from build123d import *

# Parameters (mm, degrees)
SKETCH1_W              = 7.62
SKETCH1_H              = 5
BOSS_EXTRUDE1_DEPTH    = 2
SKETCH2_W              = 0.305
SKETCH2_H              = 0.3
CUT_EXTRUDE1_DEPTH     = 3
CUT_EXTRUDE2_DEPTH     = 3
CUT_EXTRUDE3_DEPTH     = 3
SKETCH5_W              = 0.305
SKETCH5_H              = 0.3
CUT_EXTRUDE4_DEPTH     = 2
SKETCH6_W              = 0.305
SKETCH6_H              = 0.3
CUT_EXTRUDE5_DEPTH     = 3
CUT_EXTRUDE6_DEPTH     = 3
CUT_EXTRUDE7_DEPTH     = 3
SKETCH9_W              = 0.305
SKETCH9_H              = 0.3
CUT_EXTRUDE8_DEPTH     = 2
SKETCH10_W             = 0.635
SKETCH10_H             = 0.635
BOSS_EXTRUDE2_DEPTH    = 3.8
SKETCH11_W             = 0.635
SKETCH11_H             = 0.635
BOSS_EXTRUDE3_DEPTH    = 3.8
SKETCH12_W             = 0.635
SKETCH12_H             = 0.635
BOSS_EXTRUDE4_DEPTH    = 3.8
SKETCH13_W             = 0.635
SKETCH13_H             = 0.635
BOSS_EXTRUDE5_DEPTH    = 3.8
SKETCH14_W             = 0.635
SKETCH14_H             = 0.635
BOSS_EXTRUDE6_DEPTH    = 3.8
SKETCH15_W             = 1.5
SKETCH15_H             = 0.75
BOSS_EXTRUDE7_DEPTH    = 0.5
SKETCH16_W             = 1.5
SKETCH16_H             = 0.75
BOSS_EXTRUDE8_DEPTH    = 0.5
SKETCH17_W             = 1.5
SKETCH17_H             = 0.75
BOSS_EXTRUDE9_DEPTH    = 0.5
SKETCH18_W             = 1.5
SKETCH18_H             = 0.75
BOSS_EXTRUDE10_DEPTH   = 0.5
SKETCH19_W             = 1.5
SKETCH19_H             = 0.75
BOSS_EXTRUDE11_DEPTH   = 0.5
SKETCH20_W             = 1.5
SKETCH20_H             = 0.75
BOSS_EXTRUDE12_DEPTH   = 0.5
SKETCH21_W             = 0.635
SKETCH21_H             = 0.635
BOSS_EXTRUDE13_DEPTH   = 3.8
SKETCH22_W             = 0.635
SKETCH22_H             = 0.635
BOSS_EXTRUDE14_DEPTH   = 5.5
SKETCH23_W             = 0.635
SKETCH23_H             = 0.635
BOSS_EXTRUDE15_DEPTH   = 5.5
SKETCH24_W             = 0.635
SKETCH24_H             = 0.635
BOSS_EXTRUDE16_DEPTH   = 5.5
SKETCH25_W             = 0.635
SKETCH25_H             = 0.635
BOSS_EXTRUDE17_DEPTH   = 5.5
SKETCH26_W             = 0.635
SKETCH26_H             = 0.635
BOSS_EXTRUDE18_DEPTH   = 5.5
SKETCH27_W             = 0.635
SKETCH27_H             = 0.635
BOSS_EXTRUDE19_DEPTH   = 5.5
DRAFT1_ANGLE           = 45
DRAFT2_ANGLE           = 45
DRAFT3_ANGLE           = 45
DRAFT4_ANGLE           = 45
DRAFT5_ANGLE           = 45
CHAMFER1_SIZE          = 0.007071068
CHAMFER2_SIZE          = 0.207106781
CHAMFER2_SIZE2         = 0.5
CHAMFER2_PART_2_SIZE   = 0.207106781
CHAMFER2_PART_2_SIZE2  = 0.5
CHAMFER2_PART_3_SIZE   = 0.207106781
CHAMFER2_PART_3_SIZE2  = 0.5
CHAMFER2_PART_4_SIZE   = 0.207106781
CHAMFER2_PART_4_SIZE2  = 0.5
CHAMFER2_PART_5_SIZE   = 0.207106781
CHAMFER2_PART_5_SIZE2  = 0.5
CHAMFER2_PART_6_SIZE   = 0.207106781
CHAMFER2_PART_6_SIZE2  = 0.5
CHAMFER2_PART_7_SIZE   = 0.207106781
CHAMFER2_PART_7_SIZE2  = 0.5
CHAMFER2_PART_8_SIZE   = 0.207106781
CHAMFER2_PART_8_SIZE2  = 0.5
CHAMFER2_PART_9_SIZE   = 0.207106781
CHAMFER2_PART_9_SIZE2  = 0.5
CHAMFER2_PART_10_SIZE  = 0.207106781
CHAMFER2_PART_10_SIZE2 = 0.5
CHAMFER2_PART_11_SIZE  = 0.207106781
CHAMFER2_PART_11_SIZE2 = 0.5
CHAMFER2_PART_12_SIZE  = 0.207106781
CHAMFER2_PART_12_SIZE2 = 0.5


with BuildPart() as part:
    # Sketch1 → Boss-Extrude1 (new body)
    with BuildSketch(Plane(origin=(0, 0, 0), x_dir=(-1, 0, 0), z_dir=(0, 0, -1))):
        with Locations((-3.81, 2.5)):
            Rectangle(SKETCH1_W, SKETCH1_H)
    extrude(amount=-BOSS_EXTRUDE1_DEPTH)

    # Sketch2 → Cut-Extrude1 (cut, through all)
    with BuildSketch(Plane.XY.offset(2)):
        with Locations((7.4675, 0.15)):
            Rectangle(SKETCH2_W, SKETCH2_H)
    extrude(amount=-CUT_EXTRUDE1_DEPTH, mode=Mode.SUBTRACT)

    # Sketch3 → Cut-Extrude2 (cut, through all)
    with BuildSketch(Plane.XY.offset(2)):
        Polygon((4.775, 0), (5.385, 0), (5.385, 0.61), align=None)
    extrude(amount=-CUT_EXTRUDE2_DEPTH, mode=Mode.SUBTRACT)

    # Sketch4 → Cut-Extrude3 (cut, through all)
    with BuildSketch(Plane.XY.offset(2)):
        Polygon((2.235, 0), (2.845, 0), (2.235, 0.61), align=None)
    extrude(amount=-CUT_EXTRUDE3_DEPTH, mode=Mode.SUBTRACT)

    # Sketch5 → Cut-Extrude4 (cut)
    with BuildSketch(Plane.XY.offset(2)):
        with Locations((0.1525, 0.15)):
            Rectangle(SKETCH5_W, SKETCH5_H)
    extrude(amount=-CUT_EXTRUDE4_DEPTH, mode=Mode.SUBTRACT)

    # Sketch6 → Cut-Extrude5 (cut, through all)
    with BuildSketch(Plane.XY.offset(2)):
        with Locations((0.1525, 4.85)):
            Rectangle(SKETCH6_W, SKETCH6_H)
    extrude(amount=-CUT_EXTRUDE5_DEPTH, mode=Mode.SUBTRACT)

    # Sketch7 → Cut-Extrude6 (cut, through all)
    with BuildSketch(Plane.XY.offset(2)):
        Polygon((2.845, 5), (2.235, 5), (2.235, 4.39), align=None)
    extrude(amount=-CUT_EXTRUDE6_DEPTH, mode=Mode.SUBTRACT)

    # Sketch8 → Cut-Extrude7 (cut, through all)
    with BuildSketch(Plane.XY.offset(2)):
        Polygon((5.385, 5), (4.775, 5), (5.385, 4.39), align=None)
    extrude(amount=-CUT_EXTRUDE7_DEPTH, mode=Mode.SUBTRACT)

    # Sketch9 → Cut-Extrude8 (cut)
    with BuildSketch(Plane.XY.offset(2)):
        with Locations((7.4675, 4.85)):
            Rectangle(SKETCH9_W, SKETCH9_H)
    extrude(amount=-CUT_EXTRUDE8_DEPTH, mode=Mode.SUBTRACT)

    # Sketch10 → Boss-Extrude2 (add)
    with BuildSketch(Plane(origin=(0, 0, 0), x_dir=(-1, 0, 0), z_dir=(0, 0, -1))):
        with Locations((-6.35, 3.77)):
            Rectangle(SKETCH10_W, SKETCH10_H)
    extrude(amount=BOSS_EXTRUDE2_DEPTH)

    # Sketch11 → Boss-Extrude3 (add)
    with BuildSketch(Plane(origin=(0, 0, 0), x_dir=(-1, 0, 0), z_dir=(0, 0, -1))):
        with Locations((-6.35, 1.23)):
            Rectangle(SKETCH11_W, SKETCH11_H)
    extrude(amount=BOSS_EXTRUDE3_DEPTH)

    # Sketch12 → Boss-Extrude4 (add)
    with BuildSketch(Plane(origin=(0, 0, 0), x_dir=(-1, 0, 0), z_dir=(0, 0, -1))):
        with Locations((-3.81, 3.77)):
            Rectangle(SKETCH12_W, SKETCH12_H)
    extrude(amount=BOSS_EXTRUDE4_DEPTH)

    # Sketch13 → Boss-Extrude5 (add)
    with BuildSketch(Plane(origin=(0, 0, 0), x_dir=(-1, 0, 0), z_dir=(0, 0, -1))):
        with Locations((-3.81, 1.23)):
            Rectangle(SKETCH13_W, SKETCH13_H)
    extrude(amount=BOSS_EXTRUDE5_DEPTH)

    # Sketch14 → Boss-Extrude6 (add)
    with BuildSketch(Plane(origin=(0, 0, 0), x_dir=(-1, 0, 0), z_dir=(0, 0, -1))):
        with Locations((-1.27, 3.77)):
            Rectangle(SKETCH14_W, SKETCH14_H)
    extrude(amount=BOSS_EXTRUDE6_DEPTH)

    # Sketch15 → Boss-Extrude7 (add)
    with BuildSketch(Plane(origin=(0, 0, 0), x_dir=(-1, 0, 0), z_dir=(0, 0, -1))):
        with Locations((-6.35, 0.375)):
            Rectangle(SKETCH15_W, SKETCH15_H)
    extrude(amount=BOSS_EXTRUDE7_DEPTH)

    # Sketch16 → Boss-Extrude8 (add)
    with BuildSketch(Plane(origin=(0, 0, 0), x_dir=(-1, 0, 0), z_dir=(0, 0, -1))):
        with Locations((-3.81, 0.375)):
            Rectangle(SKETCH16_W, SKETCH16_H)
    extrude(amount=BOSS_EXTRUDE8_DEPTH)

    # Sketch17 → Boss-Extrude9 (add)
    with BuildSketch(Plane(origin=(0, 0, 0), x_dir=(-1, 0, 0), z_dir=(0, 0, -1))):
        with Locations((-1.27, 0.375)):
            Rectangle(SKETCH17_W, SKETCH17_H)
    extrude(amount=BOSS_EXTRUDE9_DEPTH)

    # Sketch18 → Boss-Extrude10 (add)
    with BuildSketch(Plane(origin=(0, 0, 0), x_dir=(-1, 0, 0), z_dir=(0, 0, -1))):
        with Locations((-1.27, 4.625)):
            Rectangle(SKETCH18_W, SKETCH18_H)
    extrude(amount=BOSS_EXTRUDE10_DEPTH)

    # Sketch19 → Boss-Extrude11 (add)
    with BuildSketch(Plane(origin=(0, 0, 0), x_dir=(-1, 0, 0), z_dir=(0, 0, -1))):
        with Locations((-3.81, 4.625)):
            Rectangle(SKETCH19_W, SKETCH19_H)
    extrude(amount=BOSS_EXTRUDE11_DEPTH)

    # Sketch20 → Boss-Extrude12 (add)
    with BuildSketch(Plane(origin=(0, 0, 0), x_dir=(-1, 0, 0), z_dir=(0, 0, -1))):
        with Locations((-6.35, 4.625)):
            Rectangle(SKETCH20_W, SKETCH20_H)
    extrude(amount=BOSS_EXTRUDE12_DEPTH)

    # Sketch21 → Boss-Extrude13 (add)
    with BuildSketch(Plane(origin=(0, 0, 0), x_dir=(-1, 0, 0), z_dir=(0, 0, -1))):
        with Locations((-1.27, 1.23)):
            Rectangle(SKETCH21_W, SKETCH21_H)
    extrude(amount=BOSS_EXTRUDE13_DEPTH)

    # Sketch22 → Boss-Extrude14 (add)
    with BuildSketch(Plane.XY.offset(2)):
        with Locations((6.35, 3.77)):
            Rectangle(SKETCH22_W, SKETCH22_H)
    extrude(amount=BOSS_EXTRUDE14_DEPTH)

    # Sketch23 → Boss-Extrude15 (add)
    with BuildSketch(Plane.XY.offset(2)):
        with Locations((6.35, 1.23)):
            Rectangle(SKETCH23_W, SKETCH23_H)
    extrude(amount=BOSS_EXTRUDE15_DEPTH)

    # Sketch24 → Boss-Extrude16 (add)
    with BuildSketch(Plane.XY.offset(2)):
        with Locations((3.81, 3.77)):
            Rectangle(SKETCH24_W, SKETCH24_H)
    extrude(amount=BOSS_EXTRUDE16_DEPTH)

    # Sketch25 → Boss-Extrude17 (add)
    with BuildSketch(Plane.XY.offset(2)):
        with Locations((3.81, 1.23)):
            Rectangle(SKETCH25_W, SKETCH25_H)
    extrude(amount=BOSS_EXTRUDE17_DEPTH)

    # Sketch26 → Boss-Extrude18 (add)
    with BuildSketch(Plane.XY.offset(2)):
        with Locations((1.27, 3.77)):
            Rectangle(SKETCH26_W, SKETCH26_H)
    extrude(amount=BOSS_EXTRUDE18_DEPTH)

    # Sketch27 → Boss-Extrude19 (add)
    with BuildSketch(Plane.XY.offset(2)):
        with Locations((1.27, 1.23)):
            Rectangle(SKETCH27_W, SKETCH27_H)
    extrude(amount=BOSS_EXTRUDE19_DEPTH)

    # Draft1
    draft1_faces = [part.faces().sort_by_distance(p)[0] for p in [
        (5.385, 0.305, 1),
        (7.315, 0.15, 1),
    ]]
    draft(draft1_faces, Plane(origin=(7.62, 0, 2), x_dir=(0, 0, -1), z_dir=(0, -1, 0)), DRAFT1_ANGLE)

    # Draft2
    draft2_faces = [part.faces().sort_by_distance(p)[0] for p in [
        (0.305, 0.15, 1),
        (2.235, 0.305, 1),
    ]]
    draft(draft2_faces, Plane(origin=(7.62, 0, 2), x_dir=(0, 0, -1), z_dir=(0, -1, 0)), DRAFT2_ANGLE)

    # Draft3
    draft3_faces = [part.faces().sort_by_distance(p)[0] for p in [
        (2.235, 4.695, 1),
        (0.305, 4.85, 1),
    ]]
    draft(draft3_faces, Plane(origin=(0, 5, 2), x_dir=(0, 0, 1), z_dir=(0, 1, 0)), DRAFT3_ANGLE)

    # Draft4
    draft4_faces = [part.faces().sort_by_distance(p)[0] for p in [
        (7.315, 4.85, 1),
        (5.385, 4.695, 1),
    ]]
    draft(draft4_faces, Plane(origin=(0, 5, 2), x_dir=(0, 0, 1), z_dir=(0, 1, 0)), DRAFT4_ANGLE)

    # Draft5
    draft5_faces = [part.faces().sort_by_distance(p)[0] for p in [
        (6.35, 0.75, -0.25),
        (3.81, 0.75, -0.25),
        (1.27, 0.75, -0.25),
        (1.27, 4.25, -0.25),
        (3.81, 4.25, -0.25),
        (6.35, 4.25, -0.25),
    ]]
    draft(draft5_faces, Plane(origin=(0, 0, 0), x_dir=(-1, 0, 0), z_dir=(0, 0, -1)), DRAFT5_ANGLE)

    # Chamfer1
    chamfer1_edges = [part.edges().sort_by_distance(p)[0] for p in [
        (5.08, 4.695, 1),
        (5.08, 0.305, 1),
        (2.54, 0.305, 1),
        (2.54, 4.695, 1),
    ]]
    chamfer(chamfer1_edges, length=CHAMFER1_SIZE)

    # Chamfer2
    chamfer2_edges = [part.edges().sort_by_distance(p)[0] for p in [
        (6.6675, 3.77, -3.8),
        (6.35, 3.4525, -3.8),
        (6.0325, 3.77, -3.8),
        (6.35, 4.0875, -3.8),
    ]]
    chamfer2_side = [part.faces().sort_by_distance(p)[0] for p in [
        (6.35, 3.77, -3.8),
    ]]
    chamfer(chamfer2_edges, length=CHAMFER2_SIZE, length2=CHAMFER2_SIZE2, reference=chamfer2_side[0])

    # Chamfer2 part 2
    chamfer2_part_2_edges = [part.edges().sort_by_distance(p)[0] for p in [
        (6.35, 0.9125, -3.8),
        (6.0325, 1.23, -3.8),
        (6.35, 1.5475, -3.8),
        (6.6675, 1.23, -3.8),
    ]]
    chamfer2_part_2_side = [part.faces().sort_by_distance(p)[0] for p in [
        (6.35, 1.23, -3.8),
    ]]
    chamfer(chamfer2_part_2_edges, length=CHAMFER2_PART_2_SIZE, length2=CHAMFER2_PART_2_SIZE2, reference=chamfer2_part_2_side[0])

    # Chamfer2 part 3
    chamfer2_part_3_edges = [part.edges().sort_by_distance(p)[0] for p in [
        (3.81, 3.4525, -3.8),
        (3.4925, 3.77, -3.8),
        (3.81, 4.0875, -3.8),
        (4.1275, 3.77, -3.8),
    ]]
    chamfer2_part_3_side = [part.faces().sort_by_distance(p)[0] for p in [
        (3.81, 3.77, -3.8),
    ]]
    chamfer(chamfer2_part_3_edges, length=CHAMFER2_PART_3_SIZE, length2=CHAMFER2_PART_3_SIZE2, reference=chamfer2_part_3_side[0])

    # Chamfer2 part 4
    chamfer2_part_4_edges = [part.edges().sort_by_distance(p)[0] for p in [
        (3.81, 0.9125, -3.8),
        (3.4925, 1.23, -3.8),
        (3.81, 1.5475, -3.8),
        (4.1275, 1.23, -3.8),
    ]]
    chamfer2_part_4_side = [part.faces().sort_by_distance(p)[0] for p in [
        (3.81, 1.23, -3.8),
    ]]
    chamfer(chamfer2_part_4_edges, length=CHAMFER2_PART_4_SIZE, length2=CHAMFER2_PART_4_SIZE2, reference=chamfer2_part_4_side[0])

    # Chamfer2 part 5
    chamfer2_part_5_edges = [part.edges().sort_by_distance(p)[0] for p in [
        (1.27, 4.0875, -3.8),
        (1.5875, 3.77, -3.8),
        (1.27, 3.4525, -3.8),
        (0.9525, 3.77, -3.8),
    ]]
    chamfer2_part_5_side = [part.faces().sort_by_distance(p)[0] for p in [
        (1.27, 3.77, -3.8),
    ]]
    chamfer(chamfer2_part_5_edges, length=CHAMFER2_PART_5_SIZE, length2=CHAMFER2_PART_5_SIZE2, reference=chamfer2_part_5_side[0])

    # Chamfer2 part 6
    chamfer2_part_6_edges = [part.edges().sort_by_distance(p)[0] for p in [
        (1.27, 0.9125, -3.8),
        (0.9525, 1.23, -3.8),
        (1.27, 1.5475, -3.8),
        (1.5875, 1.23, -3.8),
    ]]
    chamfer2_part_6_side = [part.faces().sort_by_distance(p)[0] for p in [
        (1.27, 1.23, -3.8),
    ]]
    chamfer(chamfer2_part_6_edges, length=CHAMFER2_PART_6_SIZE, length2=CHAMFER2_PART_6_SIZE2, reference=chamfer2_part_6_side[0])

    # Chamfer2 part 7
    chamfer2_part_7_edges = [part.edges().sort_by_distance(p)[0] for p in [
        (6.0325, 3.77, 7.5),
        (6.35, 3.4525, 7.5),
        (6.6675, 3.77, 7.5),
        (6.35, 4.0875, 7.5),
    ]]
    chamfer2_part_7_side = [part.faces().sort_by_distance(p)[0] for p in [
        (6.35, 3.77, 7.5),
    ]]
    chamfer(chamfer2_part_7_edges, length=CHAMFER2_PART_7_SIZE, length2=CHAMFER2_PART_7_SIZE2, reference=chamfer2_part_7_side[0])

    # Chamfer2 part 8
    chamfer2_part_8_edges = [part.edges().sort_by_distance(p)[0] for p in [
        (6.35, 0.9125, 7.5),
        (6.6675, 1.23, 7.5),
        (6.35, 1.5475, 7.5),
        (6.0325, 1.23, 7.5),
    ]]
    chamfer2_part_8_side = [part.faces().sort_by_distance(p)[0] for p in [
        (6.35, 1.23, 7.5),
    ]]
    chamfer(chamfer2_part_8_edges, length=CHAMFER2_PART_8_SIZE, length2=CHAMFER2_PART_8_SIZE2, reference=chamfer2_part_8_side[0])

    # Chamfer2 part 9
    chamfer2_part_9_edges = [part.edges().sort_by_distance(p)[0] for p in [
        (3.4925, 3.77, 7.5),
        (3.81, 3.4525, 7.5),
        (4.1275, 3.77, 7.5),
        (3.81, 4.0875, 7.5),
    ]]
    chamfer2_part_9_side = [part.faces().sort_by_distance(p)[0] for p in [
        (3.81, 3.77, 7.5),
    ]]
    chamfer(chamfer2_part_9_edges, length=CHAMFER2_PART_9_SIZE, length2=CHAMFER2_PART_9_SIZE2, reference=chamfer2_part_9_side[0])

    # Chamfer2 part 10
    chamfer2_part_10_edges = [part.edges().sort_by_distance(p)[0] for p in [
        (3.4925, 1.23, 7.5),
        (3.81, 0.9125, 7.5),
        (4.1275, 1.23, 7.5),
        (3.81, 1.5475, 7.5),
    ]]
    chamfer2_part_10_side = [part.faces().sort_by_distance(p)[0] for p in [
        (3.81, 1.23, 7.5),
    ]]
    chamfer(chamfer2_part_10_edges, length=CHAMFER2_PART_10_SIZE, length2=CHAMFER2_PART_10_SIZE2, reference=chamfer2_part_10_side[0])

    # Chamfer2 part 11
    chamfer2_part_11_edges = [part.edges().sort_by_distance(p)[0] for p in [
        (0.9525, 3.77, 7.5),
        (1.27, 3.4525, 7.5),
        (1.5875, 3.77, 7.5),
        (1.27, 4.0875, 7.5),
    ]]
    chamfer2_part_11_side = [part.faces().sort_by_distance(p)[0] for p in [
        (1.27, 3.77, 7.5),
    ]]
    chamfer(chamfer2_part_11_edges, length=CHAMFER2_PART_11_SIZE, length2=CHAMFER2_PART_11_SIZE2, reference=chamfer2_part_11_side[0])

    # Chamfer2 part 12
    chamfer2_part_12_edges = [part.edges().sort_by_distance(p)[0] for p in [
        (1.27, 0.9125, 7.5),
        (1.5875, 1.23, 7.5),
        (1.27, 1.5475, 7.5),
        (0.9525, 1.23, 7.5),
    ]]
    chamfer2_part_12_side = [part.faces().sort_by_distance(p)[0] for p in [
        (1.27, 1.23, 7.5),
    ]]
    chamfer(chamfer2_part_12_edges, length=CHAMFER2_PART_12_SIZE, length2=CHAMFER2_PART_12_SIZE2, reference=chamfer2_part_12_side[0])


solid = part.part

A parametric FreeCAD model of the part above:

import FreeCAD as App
import Part
import Sketcher
from FreeCAD import Vector


def edges_at(feature, points):
    """Names of the edges that pass closest to the given points."""
    edges = feature.Shape.Edges
    near = lambda p: min(range(len(edges)), key=lambda i: edges[i].distToShape(Part.Vertex(*p))[0])
    return sorted({f"Edge{near(p) + 1}" for p in points})


def faces_at(feature, points):
    """Names of the faces that lie closest to the given points."""
    faces = feature.Shape.Faces
    near = lambda p: min(range(len(faces)), key=lambda i: faces[i].distToShape(Part.Vertex(*p))[0])
    return sorted({f"Face{near(p) + 1}" for p in points})


def add_polygon(sketch, points):
    """Adds a closed chain of lines whose ends are joined by coincident constraints."""
    first, n = sketch.GeometryCount, len(points)
    for a, b in zip(points, points[1:] + points[:1]):
        sketch.addGeometry(Part.LineSegment(App.Vector(*a, 0), App.Vector(*b, 0)), False)
    for i in range(n):
        sketch.addConstraint(Sketcher.Constraint("Coincident", first + i, 2, first + (i + 1) % n, 1))

doc = App.newDocument("Part")
body = doc.addObject("PartDesign::Body", "Body")

sketch1 = doc.addObject("Sketcher::SketchObject", "Sketch")
body.addObject(sketch1)
sketch1.AttachmentSupport = (doc.XY_Plane, [""])
sketch1.MapMode = "FlatFace"
add_polygon(sketch1, [(7.62, 5), (7.62, 0), (0, 0), (0, 5)])
sketch1.addConstraint(Sketcher.Constraint("Vertical", 0))
sketch1.addConstraint(Sketcher.Constraint("Horizontal", 1))
sketch1.addConstraint(Sketcher.Constraint("Vertical", 2))
sketch1.addConstraint(Sketcher.Constraint("Horizontal", 3))
sketch1.addConstraint(Sketcher.Constraint("Coincident", 1, 2, -1, 1))
sketch1.addConstraint(Sketcher.Constraint("DistanceY", 0, 2, 0, 1, 5.0))
sketch1.addConstraint(Sketcher.Constraint("DistanceX", 1, 2, 1, 1, 7.62))
pad1 = doc.addObject("PartDesign::Pad", "Pad")
body.addObject(pad1)
pad1.Profile = sketch1
pad1.Length = 2

sketch2 = doc.addObject("Sketcher::SketchObject", "Sketch001")
body.addObject(sketch2)
sketch2.AttachmentSupport = (doc.XY_Plane, [""])
sketch2.MapMode = "FlatFace"
sketch2.AttachmentOffset = App.Placement(Vector(0, 0, 2), App.Rotation())
add_polygon(sketch2, [(7.315, 0.3), (7.315, 0), (7.62, 0), (7.62, 0.3)])
sketch2.addConstraint(Sketcher.Constraint("Vertical", 0))
sketch2.addConstraint(Sketcher.Constraint("Horizontal", 1))
sketch2.addConstraint(Sketcher.Constraint("Vertical", 2))
sketch2.addConstraint(Sketcher.Constraint("Horizontal", 3))
sketch2.addConstraint(Sketcher.Constraint("PointOnObject", 0, 2, -1))
sketch2.addConstraint(Sketcher.Constraint("DistanceY", 0, 2, 0, 1, 0.3))
sketch2.addConstraint(Sketcher.Constraint("DistanceX", 1, 1, 1, 2, 0.305))
sketch2.addConstraint(Sketcher.Constraint("DistanceX", -1, 1, 1, 2, 7.62))
pocket1 = doc.addObject("PartDesign::Pocket", "Pocket")
body.addObject(pocket1)
pocket1.Profile = sketch2
pocket1.Type = "ThroughAll"

sketch3 = doc.addObject("Sketcher::SketchObject", "Sketch002")
body.addObject(sketch3)
sketch3.AttachmentSupport = (doc.XY_Plane, [""])
sketch3.MapMode = "FlatFace"
sketch3.AttachmentOffset = App.Placement(Vector(0, 0, 2), App.Rotation())
add_polygon(sketch3, [(4.775, 0), (5.385, 0), (5.385, 0.61)])
sketch3.addConstraint(Sketcher.Constraint("Horizontal", 0))
sketch3.addConstraint(Sketcher.Constraint("Vertical", 1))
sketch3.addConstraint(Sketcher.Constraint("PointOnObject", 0, 2, -1))
sketch3.addConstraint(Sketcher.Constraint("Equal", 0, 1))
sketch3.addConstraint(Sketcher.Constraint("DistanceX", 0, 1, 0, 2, 0.61))
sketch3.addConstraint(Sketcher.Constraint("DistanceX", -1, 1, 0, 2, 5.385))
pocket2 = doc.addObject("PartDesign::Pocket", "Pocket001")
body.addObject(pocket2)
pocket2.Profile = sketch3
pocket2.Type = "ThroughAll"

sketch4 = doc.addObject("Sketcher::SketchObject", "Sketch003")
body.addObject(sketch4)
sketch4.AttachmentSupport = (doc.XY_Plane, [""])
sketch4.MapMode = "FlatFace"
sketch4.AttachmentOffset = App.Placement(Vector(0, 0, 2), App.Rotation())
add_polygon(sketch4, [(2.235, 0), (2.845, 0), (2.235, 0.61)])
sketch4.addConstraint(Sketcher.Constraint("Horizontal", 0))
sketch4.addConstraint(Sketcher.Constraint("Vertical", 2))
sketch4.addConstraint(Sketcher.Constraint("PointOnObject", 0, 2, -1))
sketch4.addConstraint(Sketcher.Constraint("Equal", 0, 2))
sketch4.addConstraint(Sketcher.Constraint("DistanceX", 0, 1, 0, 2, 0.61))
sketch4.addConstraint(Sketcher.Constraint("DistanceX", -1, 1, 0, 2, 2.845))
pocket3 = doc.addObject("PartDesign::Pocket", "Pocket002")
body.addObject(pocket3)
pocket3.Profile = sketch4
pocket3.Type = "ThroughAll"

sketch5 = doc.addObject("Sketcher::SketchObject", "Sketch004")
body.addObject(sketch5)
sketch5.AttachmentSupport = (doc.XY_Plane, [""])
sketch5.MapMode = "FlatFace"
sketch5.AttachmentOffset = App.Placement(Vector(0, 0, 2), App.Rotation())
add_polygon(sketch5, [(0, 0.3), (0, 0), (0.305, 0), (0.305, 0.3)])
sketch5.addConstraint(Sketcher.Constraint("Vertical", 0))
sketch5.addConstraint(Sketcher.Constraint("Horizontal", 1))
sketch5.addConstraint(Sketcher.Constraint("Vertical", 2))
sketch5.addConstraint(Sketcher.Constraint("Horizontal", 3))
sketch5.addConstraint(Sketcher.Constraint("Coincident", 0, 2, -1, 1))
sketch5.addConstraint(Sketcher.Constraint("DistanceY", 0, 2, 0, 1, 0.3))
sketch5.addConstraint(Sketcher.Constraint("DistanceX", 1, 1, 1, 2, 0.305))
pocket4 = doc.addObject("PartDesign::Pocket", "Pocket003")
body.addObject(pocket4)
pocket4.Profile = sketch5
pocket4.Length = 2

sketch6 = doc.addObject("Sketcher::SketchObject", "Sketch005")
body.addObject(sketch6)
sketch6.AttachmentSupport = (doc.XY_Plane, [""])
sketch6.MapMode = "FlatFace"
sketch6.AttachmentOffset = App.Placement(Vector(0, 0, 2), App.Rotation())
add_polygon(sketch6, [(0, 5), (0, 4.7), (0.305, 4.7), (0.305, 5)])
sketch6.addConstraint(Sketcher.Constraint("Vertical", 0))
sketch6.addConstraint(Sketcher.Constraint("Horizontal", 1))
sketch6.addConstraint(Sketcher.Constraint("Vertical", 2))
sketch6.addConstraint(Sketcher.Constraint("Horizontal", 3))
sketch6.addConstraint(Sketcher.Constraint("PointOnObject", 0, 2, -2))
sketch6.addConstraint(Sketcher.Constraint("DistanceY", 0, 2, 0, 1, 0.3))
sketch6.addConstraint(Sketcher.Constraint("DistanceY", -1, 1, 2, 2, 5.0))
sketch6.addConstraint(Sketcher.Constraint("DistanceX", 1, 1, 1, 2, 0.305))
pocket5 = doc.addObject("PartDesign::Pocket", "Pocket004")
body.addObject(pocket5)
pocket5.Profile = sketch6
pocket5.Type = "ThroughAll"

sketch7 = doc.addObject("Sketcher::SketchObject", "Sketch006")
body.addObject(sketch7)
sketch7.AttachmentSupport = (doc.XY_Plane, [""])
sketch7.MapMode = "FlatFace"
sketch7.AttachmentOffset = App.Placement(Vector(0, 0, 2), App.Rotation())
add_polygon(sketch7, [(2.845, 5), (2.235, 5), (2.235, 4.39)])
sketch7.addConstraint(Sketcher.Constraint("Horizontal", 0))
sketch7.addConstraint(Sketcher.Constraint("Vertical", 1))
sketch7.addConstraint(Sketcher.Constraint("Equal", 0, 1))
sketch7.addConstraint(Sketcher.Constraint("DistanceY", -1, 1, 0, 2, 5.0))
sketch7.addConstraint(Sketcher.Constraint("DistanceX", 0, 2, 0, 1, 0.61))
sketch7.addConstraint(Sketcher.Constraint("DistanceX", -1, 1, 0, 2, 2.235))
pocket6 = doc.addObject("PartDesign::Pocket", "Pocket005")
body.addObject(pocket6)
pocket6.Profile = sketch7
pocket6.Type = "ThroughAll"

sketch8 = doc.addObject("Sketcher::SketchObject", "Sketch007")
body.addObject(sketch8)
sketch8.AttachmentSupport = (doc.XY_Plane, [""])
sketch8.MapMode = "FlatFace"
sketch8.AttachmentOffset = App.Placement(Vector(0, 0, 2), App.Rotation())
add_polygon(sketch8, [(5.385, 5), (4.775, 5), (5.385, 4.39)])
sketch8.addConstraint(Sketcher.Constraint("Horizontal", 0))
sketch8.addConstraint(Sketcher.Constraint("Vertical", 2))
sketch8.addConstraint(Sketcher.Constraint("Equal", 0, 2))
sketch8.addConstraint(Sketcher.Constraint("DistanceY", -1, 1, 0, 2, 5.0))
sketch8.addConstraint(Sketcher.Constraint("DistanceX", 0, 2, 0, 1, 0.61))
sketch8.addConstraint(Sketcher.Constraint("DistanceX", -1, 1, 0, 2, 4.775))
pocket7 = doc.addObject("PartDesign::Pocket", "Pocket006")
body.addObject(pocket7)
pocket7.Profile = sketch8
pocket7.Type = "ThroughAll"

sketch9 = doc.addObject("Sketcher::SketchObject", "Sketch008")
body.addObject(sketch9)
sketch9.AttachmentSupport = (doc.XY_Plane, [""])
sketch9.MapMode = "FlatFace"
sketch9.AttachmentOffset = App.Placement(Vector(0, 0, 2), App.Rotation())
add_polygon(sketch9, [(7.315, 5), (7.315, 4.7), (7.62, 4.7), (7.62, 5)])
sketch9.addConstraint(Sketcher.Constraint("Vertical", 0))
sketch9.addConstraint(Sketcher.Constraint("Horizontal", 1))
sketch9.addConstraint(Sketcher.Constraint("Vertical", 2))
sketch9.addConstraint(Sketcher.Constraint("Horizontal", 3))
sketch9.addConstraint(Sketcher.Constraint("DistanceY", 0, 2, 0, 1, 0.3))
sketch9.addConstraint(Sketcher.Constraint("DistanceY", -1, 1, 2, 2, 5.0))
sketch9.addConstraint(Sketcher.Constraint("DistanceX", 1, 1, 1, 2, 0.305))
sketch9.addConstraint(Sketcher.Constraint("DistanceX", -1, 1, 1, 2, 7.62))
pocket8 = doc.addObject("PartDesign::Pocket", "Pocket007")
body.addObject(pocket8)
pocket8.Profile = sketch9
pocket8.Length = 2

sketch10 = doc.addObject("Sketcher::SketchObject", "Sketch009")
body.addObject(sketch10)
sketch10.AttachmentSupport = (doc.XY_Plane, [""])
sketch10.MapMode = "FlatFace"
add_polygon(sketch10, [(6.6675, 4.0875), (6.6675, 3.4525), (6.0325, 3.4525), (6.0325, 4.0875)])
sketch10.addConstraint(Sketcher.Constraint("Vertical", 0))
sketch10.addConstraint(Sketcher.Constraint("Horizontal", 1))
sketch10.addConstraint(Sketcher.Constraint("Vertical", 2))
sketch10.addConstraint(Sketcher.Constraint("Horizontal", 3))
sketch10.addConstraint(Sketcher.Constraint("Equal", 3, 0))
sketch10.addConstraint(Sketcher.Constraint("DistanceX", 1, 2, 1, 1, 0.635))
sketch10.addConstraint(Sketcher.Constraint("DistanceX", -1, 1, 0, 2, 6.6675))
sketch10.addConstraint(Sketcher.Constraint("DistanceY", -1, 1, 0, 2, 3.4525))
pad2 = doc.addObject("PartDesign::Pad", "Pad001")
body.addObject(pad2)
pad2.Profile = sketch10
pad2.Length = 3.8
pad2.Reversed = True

sketch11 = doc.addObject("Sketcher::SketchObject", "Sketch010")
body.addObject(sketch11)
sketch11.AttachmentSupport = (doc.XY_Plane, [""])
sketch11.MapMode = "FlatFace"
add_polygon(sketch11, [(6.6675, 1.5475), (6.6675, 0.9125), (6.0325, 0.9125), (6.0325, 1.5475)])
sketch11.addConstraint(Sketcher.Constraint("Vertical", 0))
sketch11.addConstraint(Sketcher.Constraint("Horizontal", 1))
sketch11.addConstraint(Sketcher.Constraint("Vertical", 2))
sketch11.addConstraint(Sketcher.Constraint("Horizontal", 3))
sketch11.addConstraint(Sketcher.Constraint("Equal", 3, 0))
sketch11.addConstraint(Sketcher.Constraint("DistanceX", 1, 2, 1, 1, 0.635))
sketch11.addConstraint(Sketcher.Constraint("DistanceX", -1, 1, 0, 2, 6.6675))
sketch11.addConstraint(Sketcher.Constraint("DistanceY", -1, 1, 0, 2, 0.9125))
pad3 = doc.addObject("PartDesign::Pad", "Pad002")
body.addObject(pad3)
pad3.Profile = sketch11
pad3.Length = 3.8
pad3.Reversed = True

sketch12 = doc.addObject("Sketcher::SketchObject", "Sketch011")
body.addObject(sketch12)
sketch12.AttachmentSupport = (doc.XY_Plane, [""])
sketch12.MapMode = "FlatFace"
add_polygon(sketch12, [(4.1275, 4.0875), (4.1275, 3.4525), (3.4925, 3.4525), (3.4925, 4.0875)])
sketch12.addConstraint(Sketcher.Constraint("Vertical", 0))
sketch12.addConstraint(Sketcher.Constraint("Horizontal", 1))
sketch12.addConstraint(Sketcher.Constraint("Vertical", 2))
sketch12.addConstraint(Sketcher.Constraint("Horizontal", 3))
sketch12.addConstraint(Sketcher.Constraint("Equal", 3, 0))
sketch12.addConstraint(Sketcher.Constraint("DistanceX", 1, 2, 1, 1, 0.635))
sketch12.addConstraint(Sketcher.Constraint("DistanceX", -1, 1, 0, 2, 4.1275))
sketch12.addConstraint(Sketcher.Constraint("DistanceY", -1, 1, 0, 2, 3.4525))
pad4 = doc.addObject("PartDesign::Pad", "Pad003")
body.addObject(pad4)
pad4.Profile = sketch12
pad4.Length = 3.8
pad4.Reversed = True

sketch13 = doc.addObject("Sketcher::SketchObject", "Sketch012")
body.addObject(sketch13)
sketch13.AttachmentSupport = (doc.XY_Plane, [""])
sketch13.MapMode = "FlatFace"
add_polygon(sketch13, [(4.1275, 1.5475), (4.1275, 0.9125), (3.4925, 0.9125), (3.4925, 1.5475)])
sketch13.addConstraint(Sketcher.Constraint("Vertical", 0))
sketch13.addConstraint(Sketcher.Constraint("Horizontal", 1))
sketch13.addConstraint(Sketcher.Constraint("Vertical", 2))
sketch13.addConstraint(Sketcher.Constraint("Horizontal", 3))
sketch13.addConstraint(Sketcher.Constraint("Equal", 3, 0))
sketch13.addConstraint(Sketcher.Constraint("DistanceX", 1, 2, 1, 1, 0.635))
sketch13.addConstraint(Sketcher.Constraint("DistanceX", -1, 1, 0, 2, 4.1275))
sketch13.addConstraint(Sketcher.Constraint("DistanceY", -1, 1, 0, 2, 0.9125))
pad5 = doc.addObject("PartDesign::Pad", "Pad004")
body.addObject(pad5)
pad5.Profile = sketch13
pad5.Length = 3.8
pad5.Reversed = True

sketch14 = doc.addObject("Sketcher::SketchObject", "Sketch013")
body.addObject(sketch14)
sketch14.AttachmentSupport = (doc.XY_Plane, [""])
sketch14.MapMode = "FlatFace"
add_polygon(sketch14, [(1.5875, 4.0875), (1.5875, 3.4525), (0.9525, 3.4525), (0.9525, 4.0875)])
sketch14.addConstraint(Sketcher.Constraint("Vertical", 0))
sketch14.addConstraint(Sketcher.Constraint("Horizontal", 1))
sketch14.addConstraint(Sketcher.Constraint("Vertical", 2))
sketch14.addConstraint(Sketcher.Constraint("Horizontal", 3))
sketch14.addConstraint(Sketcher.Constraint("Equal", 3, 0))
sketch14.addConstraint(Sketcher.Constraint("DistanceX", 1, 2, 1, 1, 0.635))
sketch14.addConstraint(Sketcher.Constraint("DistanceX", -1, 1, 0, 2, 1.5875))
sketch14.addConstraint(Sketcher.Constraint("DistanceY", -1, 1, 0, 2, 3.4525))
pad6 = doc.addObject("PartDesign::Pad", "Pad005")
body.addObject(pad6)
pad6.Profile = sketch14
pad6.Length = 3.8
pad6.Reversed = True

sketch15 = doc.addObject("Sketcher::SketchObject", "Sketch014")
body.addObject(sketch15)
sketch15.AttachmentSupport = (doc.XY_Plane, [""])
sketch15.MapMode = "FlatFace"
add_polygon(sketch15, [(7.1, 0.75), (7.1, 0), (5.6, 0), (5.6, 0.75)])
sketch15.addConstraint(Sketcher.Constraint("Vertical", 0))
sketch15.addConstraint(Sketcher.Constraint("Horizontal", 1))
sketch15.addConstraint(Sketcher.Constraint("Vertical", 2))
sketch15.addConstraint(Sketcher.Constraint("Horizontal", 3))
sketch15.addConstraint(Sketcher.Constraint("PointOnObject", 0, 2, -1))
sketch15.addConstraint(Sketcher.Constraint("DistanceX", 1, 2, 1, 1, 1.5))
sketch15.addConstraint(Sketcher.Constraint("DistanceY", 0, 2, 0, 1, 0.75))
sketch15.addConstraint(Sketcher.Constraint("DistanceX", -1, 1, 0, 2, 7.1))
pad7 = doc.addObject("PartDesign::Pad", "Pad006")
body.addObject(pad7)
pad7.Profile = sketch15
pad7.Length = 0.5
pad7.Reversed = True

sketch16 = doc.addObject("Sketcher::SketchObject", "Sketch015")
body.addObject(sketch16)
sketch16.AttachmentSupport = (doc.XY_Plane, [""])
sketch16.MapMode = "FlatFace"
add_polygon(sketch16, [(4.56, 0.75), (4.56, 0), (3.06, 0), (3.06, 0.75)])
sketch16.addConstraint(Sketcher.Constraint("Vertical", 0))
sketch16.addConstraint(Sketcher.Constraint("Horizontal", 1))
sketch16.addConstraint(Sketcher.Constraint("Vertical", 2))
sketch16.addConstraint(Sketcher.Constraint("Horizontal", 3))
sketch16.addConstraint(Sketcher.Constraint("PointOnObject", 0, 2, -1))
sketch16.addConstraint(Sketcher.Constraint("DistanceX", 1, 2, 1, 1, 1.5))
sketch16.addConstraint(Sketcher.Constraint("DistanceY", 0, 2, 0, 1, 0.75))
sketch16.addConstraint(Sketcher.Constraint("DistanceX", -1, 1, 0, 2, 4.56))
pad8 = doc.addObject("PartDesign::Pad", "Pad007")
body.addObject(pad8)
pad8.Profile = sketch16
pad8.Length = 0.5
pad8.Reversed = True

sketch17 = doc.addObject("Sketcher::SketchObject", "Sketch016")
body.addObject(sketch17)
sketch17.AttachmentSupport = (doc.XY_Plane, [""])
sketch17.MapMode = "FlatFace"
add_polygon(sketch17, [(2.02, 0.75), (2.02, 0), (0.52, 0), (0.52, 0.75)])
sketch17.addConstraint(Sketcher.Constraint("Vertical", 0))
sketch17.addConstraint(Sketcher.Constraint("Horizontal", 1))
sketch17.addConstraint(Sketcher.Constraint("Vertical", 2))
sketch17.addConstraint(Sketcher.Constraint("Horizontal", 3))
sketch17.addConstraint(Sketcher.Constraint("PointOnObject", 0, 2, -1))
sketch17.addConstraint(Sketcher.Constraint("DistanceX", 1, 2, 1, 1, 1.5))
sketch17.addConstraint(Sketcher.Constraint("DistanceY", 0, 2, 0, 1, 0.75))
sketch17.addConstraint(Sketcher.Constraint("DistanceX", -1, 1, 0, 2, 2.02))
pad9 = doc.addObject("PartDesign::Pad", "Pad008")
body.addObject(pad9)
pad9.Profile = sketch17
pad9.Length = 0.5
pad9.Reversed = True

sketch18 = doc.addObject("Sketcher::SketchObject", "Sketch017")
body.addObject(sketch18)
sketch18.AttachmentSupport = (doc.XY_Plane, [""])
sketch18.MapMode = "FlatFace"
add_polygon(sketch18, [(2.02, 5), (2.02, 4.25), (0.52, 4.25), (0.52, 5)])
sketch18.addConstraint(Sketcher.Constraint("Vertical", 0))
sketch18.addConstraint(Sketcher.Constraint("Horizontal", 1))
sketch18.addConstraint(Sketcher.Constraint("Vertical", 2))
sketch18.addConstraint(Sketcher.Constraint("Horizontal", 3))
sketch18.addConstraint(Sketcher.Constraint("DistanceX", 1, 2, 1, 1, 1.5))
sketch18.addConstraint(Sketcher.Constraint("DistanceY", -1, 1, 2, 2, 5.0))
sketch18.addConstraint(Sketcher.Constraint("DistanceY", 0, 2, 0, 1, 0.75))
sketch18.addConstraint(Sketcher.Constraint("DistanceX", -1, 1, 0, 2, 2.02))
pad10 = doc.addObject("PartDesign::Pad", "Pad009")
body.addObject(pad10)
pad10.Profile = sketch18
pad10.Length = 0.5
pad10.Reversed = True

sketch19 = doc.addObject("Sketcher::SketchObject", "Sketch018")
body.addObject(sketch19)
sketch19.AttachmentSupport = (doc.XY_Plane, [""])
sketch19.MapMode = "FlatFace"
add_polygon(sketch19, [(4.56, 5), (4.56, 4.25), (3.06, 4.25), (3.06, 5)])
sketch19.addConstraint(Sketcher.Constraint("Vertical", 0))
sketch19.addConstraint(Sketcher.Constraint("Horizontal", 1))
sketch19.addConstraint(Sketcher.Constraint("Vertical", 2))
sketch19.addConstraint(Sketcher.Constraint("Horizontal", 3))
sketch19.addConstraint(Sketcher.Constraint("DistanceX", 1, 2, 1, 1, 1.5))
sketch19.addConstraint(Sketcher.Constraint("DistanceY", -1, 1, 2, 2, 5.0))
sketch19.addConstraint(Sketcher.Constraint("DistanceY", 0, 2, 0, 1, 0.75))
sketch19.addConstraint(Sketcher.Constraint("DistanceX", -1, 1, 0, 2, 4.56))
pad11 = doc.addObject("PartDesign::Pad", "Pad010")
body.addObject(pad11)
pad11.Profile = sketch19
pad11.Length = 0.5
pad11.Reversed = True

sketch20 = doc.addObject("Sketcher::SketchObject", "Sketch019")
body.addObject(sketch20)
sketch20.AttachmentSupport = (doc.XY_Plane, [""])
sketch20.MapMode = "FlatFace"
add_polygon(sketch20, [(7.1, 5), (7.1, 4.25), (5.6, 4.25), (5.6, 5)])
sketch20.addConstraint(Sketcher.Constraint("Vertical", 0))
sketch20.addConstraint(Sketcher.Constraint("Horizontal", 1))
sketch20.addConstraint(Sketcher.Constraint("Vertical", 2))
sketch20.addConstraint(Sketcher.Constraint("Horizontal", 3))
sketch20.addConstraint(Sketcher.Constraint("DistanceX", 1, 2, 1, 1, 1.5))
sketch20.addConstraint(Sketcher.Constraint("DistanceY", -1, 1, 2, 2, 5.0))
sketch20.addConstraint(Sketcher.Constraint("DistanceY", 0, 2, 0, 1, 0.75))
sketch20.addConstraint(Sketcher.Constraint("DistanceX", -1, 1, 0, 2, 7.1))
pad12 = doc.addObject("PartDesign::Pad", "Pad011")
body.addObject(pad12)
pad12.Profile = sketch20
pad12.Length = 0.5
pad12.Reversed = True

sketch21 = doc.addObject("Sketcher::SketchObject", "Sketch020")
body.addObject(sketch21)
sketch21.AttachmentSupport = (doc.XY_Plane, [""])
sketch21.MapMode = "FlatFace"
add_polygon(sketch21, [(1.5875, 1.5475), (1.5875, 0.9125), (0.9525, 0.9125), (0.9525, 1.5475)])
sketch21.addConstraint(Sketcher.Constraint("Vertical", 0))
sketch21.addConstraint(Sketcher.Constraint("Horizontal", 1))
sketch21.addConstraint(Sketcher.Constraint("Vertical", 2))
sketch21.addConstraint(Sketcher.Constraint("Horizontal", 3))
sketch21.addConstraint(Sketcher.Constraint("Equal", 3, 0))
sketch21.addConstraint(Sketcher.Constraint("DistanceX", 1, 2, 1, 1, 0.635))
sketch21.addConstraint(Sketcher.Constraint("DistanceX", -1, 1, 0, 2, 1.5875))
sketch21.addConstraint(Sketcher.Constraint("DistanceY", -1, 1, 0, 2, 0.9125))
pad13 = doc.addObject("PartDesign::Pad", "Pad012")
body.addObject(pad13)
pad13.Profile = sketch21
pad13.Length = 3.8
pad13.Reversed = True

sketch22 = doc.addObject("Sketcher::SketchObject", "Sketch021")
body.addObject(sketch22)
sketch22.AttachmentSupport = (doc.XY_Plane, [""])
sketch22.MapMode = "FlatFace"
sketch22.AttachmentOffset = App.Placement(Vector(0, 0, 2), App.Rotation())
add_polygon(sketch22, [(6.0325, 4.0875), (6.0325, 3.4525), (6.6675, 3.4525), (6.6675, 4.0875)])
sketch22.addConstraint(Sketcher.Constraint("Vertical", 0))
sketch22.addConstraint(Sketcher.Constraint("Horizontal", 1))
sketch22.addConstraint(Sketcher.Constraint("Vertical", 2))
sketch22.addConstraint(Sketcher.Constraint("Horizontal", 3))
sketch22.addConstraint(Sketcher.Constraint("Equal", 3, 0))
sketch22.addConstraint(Sketcher.Constraint("DistanceX", 1, 1, 1, 2, 0.635))
sketch22.addConstraint(Sketcher.Constraint("DistanceX", -1, 1, 0, 2, 6.0325))
sketch22.addConstraint(Sketcher.Constraint("DistanceY", -1, 1, 0, 2, 3.4525))
pad14 = doc.addObject("PartDesign::Pad", "Pad013")
body.addObject(pad14)
pad14.Profile = sketch22
pad14.Length = 5.5

sketch23 = doc.addObject("Sketcher::SketchObject", "Sketch022")
body.addObject(sketch23)
sketch23.AttachmentSupport = (doc.XY_Plane, [""])
sketch23.MapMode = "FlatFace"
sketch23.AttachmentOffset = App.Placement(Vector(0, 0, 2), App.Rotation())
add_polygon(sketch23, [(6.0325, 1.5475), (6.0325, 0.9125), (6.6675, 0.9125), (6.6675, 1.5475)])
sketch23.addConstraint(Sketcher.Constraint("Vertical", 0))
sketch23.addConstraint(Sketcher.Constraint("Horizontal", 1))
sketch23.addConstraint(Sketcher.Constraint("Vertical", 2))
sketch23.addConstraint(Sketcher.Constraint("Horizontal", 3))
sketch23.addConstraint(Sketcher.Constraint("Equal", 3, 0))
sketch23.addConstraint(Sketcher.Constraint("DistanceX", 1, 1, 1, 2, 0.635))
sketch23.addConstraint(Sketcher.Constraint("DistanceX", -1, 1, 0, 2, 6.0325))
sketch23.addConstraint(Sketcher.Constraint("DistanceY", -1, 1, 0, 2, 0.9125))
pad15 = doc.addObject("PartDesign::Pad", "Pad014")
body.addObject(pad15)
pad15.Profile = sketch23
pad15.Length = 5.5

sketch24 = doc.addObject("Sketcher::SketchObject", "Sketch023")
body.addObject(sketch24)
sketch24.AttachmentSupport = (doc.XY_Plane, [""])
sketch24.MapMode = "FlatFace"
sketch24.AttachmentOffset = App.Placement(Vector(0, 0, 2), App.Rotation())
add_polygon(sketch24, [(3.4925, 4.0875), (3.4925, 3.4525), (4.1275, 3.4525), (4.1275, 4.0875)])
sketch24.addConstraint(Sketcher.Constraint("Vertical", 0))
sketch24.addConstraint(Sketcher.Constraint("Horizontal", 1))
sketch24.addConstraint(Sketcher.Constraint("Vertical", 2))
sketch24.addConstraint(Sketcher.Constraint("Horizontal", 3))
sketch24.addConstraint(Sketcher.Constraint("Equal", 3, 0))
sketch24.addConstraint(Sketcher.Constraint("DistanceX", 1, 1, 1, 2, 0.635))
sketch24.addConstraint(Sketcher.Constraint("DistanceX", -1, 1, 0, 2, 3.4925))
sketch24.addConstraint(Sketcher.Constraint("DistanceY", -1, 1, 0, 2, 3.4525))
pad16 = doc.addObject("PartDesign::Pad", "Pad015")
body.addObject(pad16)
pad16.Profile = sketch24
pad16.Length = 5.5

sketch25 = doc.addObject("Sketcher::SketchObject", "Sketch024")
body.addObject(sketch25)
sketch25.AttachmentSupport = (doc.XY_Plane, [""])
sketch25.MapMode = "FlatFace"
sketch25.AttachmentOffset = App.Placement(Vector(0, 0, 2), App.Rotation())
add_polygon(sketch25, [(3.4925, 1.5475), (3.4925, 0.9125), (4.1275, 0.9125), (4.1275, 1.5475)])
sketch25.addConstraint(Sketcher.Constraint("Vertical", 0))
sketch25.addConstraint(Sketcher.Constraint("Horizontal", 1))
sketch25.addConstraint(Sketcher.Constraint("Vertical", 2))
sketch25.addConstraint(Sketcher.Constraint("Horizontal", 3))
sketch25.addConstraint(Sketcher.Constraint("Equal", 3, 0))
sketch25.addConstraint(Sketcher.Constraint("DistanceX", 1, 1, 1, 2, 0.635))
sketch25.addConstraint(Sketcher.Constraint("DistanceX", -1, 1, 0, 2, 3.4925))
sketch25.addConstraint(Sketcher.Constraint("DistanceY", -1, 1, 0, 2, 0.9125))
pad17 = doc.addObject("PartDesign::Pad", "Pad016")
body.addObject(pad17)
pad17.Profile = sketch25
pad17.Length = 5.5

sketch26 = doc.addObject("Sketcher::SketchObject", "Sketch025")
body.addObject(sketch26)
sketch26.AttachmentSupport = (doc.XY_Plane, [""])
sketch26.MapMode = "FlatFace"
sketch26.AttachmentOffset = App.Placement(Vector(0, 0, 2), App.Rotation())
add_polygon(sketch26, [(0.9525, 4.0875), (0.9525, 3.4525), (1.5875, 3.4525), (1.5875, 4.0875)])
sketch26.addConstraint(Sketcher.Constraint("Vertical", 0))
sketch26.addConstraint(Sketcher.Constraint("Horizontal", 1))
sketch26.addConstraint(Sketcher.Constraint("Vertical", 2))
sketch26.addConstraint(Sketcher.Constraint("Horizontal", 3))
sketch26.addConstraint(Sketcher.Constraint("Equal", 3, 0))
sketch26.addConstraint(Sketcher.Constraint("DistanceX", 1, 1, 1, 2, 0.635))
sketch26.addConstraint(Sketcher.Constraint("DistanceX", -1, 1, 0, 2, 0.9525))
sketch26.addConstraint(Sketcher.Constraint("DistanceY", -1, 1, 0, 2, 3.4525))
pad18 = doc.addObject("PartDesign::Pad", "Pad017")
body.addObject(pad18)
pad18.Profile = sketch26
pad18.Length = 5.5

sketch27 = doc.addObject("Sketcher::SketchObject", "Sketch026")
body.addObject(sketch27)
sketch27.AttachmentSupport = (doc.XY_Plane, [""])
sketch27.MapMode = "FlatFace"
sketch27.AttachmentOffset = App.Placement(Vector(0, 0, 2), App.Rotation())
add_polygon(sketch27, [(0.9525, 1.5475), (0.9525, 0.9125), (1.5875, 0.9125), (1.5875, 1.5475)])
sketch27.addConstraint(Sketcher.Constraint("Vertical", 0))
sketch27.addConstraint(Sketcher.Constraint("Horizontal", 1))
sketch27.addConstraint(Sketcher.Constraint("Vertical", 2))
sketch27.addConstraint(Sketcher.Constraint("Horizontal", 3))
sketch27.addConstraint(Sketcher.Constraint("Equal", 3, 0))
sketch27.addConstraint(Sketcher.Constraint("DistanceX", 1, 1, 1, 2, 0.635))
sketch27.addConstraint(Sketcher.Constraint("DistanceX", -1, 1, 0, 2, 0.9525))
sketch27.addConstraint(Sketcher.Constraint("DistanceY", -1, 1, 0, 2, 0.9125))
pad19 = doc.addObject("PartDesign::Pad", "Pad018")
body.addObject(pad19)
pad19.Profile = sketch27
pad19.Length = 5.5
doc.recompute()

draft = doc.addObject("PartDesign::Draft", "Draft")
body.addObject(draft)
draft.Base = (pad19, faces_at(pad19, [(5.385, 0.305, 1), (7.315, 0.15, 1)]))
draft.NeutralPlane = (doc.XZ_Plane, [""])
draft.Angle = 45
draft.Reversed = False
doc.recompute()

draft2 = doc.addObject("PartDesign::Draft", "Draft001")
body.addObject(draft2)
draft2.Base = (draft, faces_at(draft, [(0.305, 0.15, 1), (2.235, 0.305, 1)]))
draft2.NeutralPlane = (doc.XZ_Plane, [""])
draft2.Angle = 45
draft2.Reversed = False
doc.recompute()

datumplane = doc.addObject("PartDesign::Plane", "DatumPlane")
body.addObject(datumplane)
datumplane.AttachmentSupport = (doc.XZ_Plane, [""])
datumplane.MapMode = "FlatFace"
datumplane.AttachmentOffset = App.Placement(Vector(0, 0, -5), App.Rotation())
draft3 = doc.addObject("PartDesign::Draft", "Draft002")
body.addObject(draft3)
draft3.Base = (draft2, faces_at(draft2, [(2.235, 4.695, 1), (0.305, 4.85, 1)]))
draft3.NeutralPlane = (datumplane, [""])
draft3.Angle = 45
draft3.Reversed = True
doc.recompute()

datumplane2 = doc.addObject("PartDesign::Plane", "DatumPlane001")
body.addObject(datumplane2)
datumplane2.AttachmentSupport = (doc.XZ_Plane, [""])
datumplane2.MapMode = "FlatFace"
datumplane2.AttachmentOffset = App.Placement(Vector(0, 0, -5), App.Rotation())
draft4 = doc.addObject("PartDesign::Draft", "Draft003")
body.addObject(draft4)
draft4.Base = (draft3, faces_at(draft3, [(7.315, 4.85, 1), (5.385, 4.695, 1)]))
draft4.NeutralPlane = (datumplane2, [""])
draft4.Angle = 45
draft4.Reversed = True
doc.recompute()

draft5 = doc.addObject("PartDesign::Draft", "Draft004")
body.addObject(draft5)
draft5.Base = (draft4, faces_at(draft4, [
    (6.35, 0.75, -0.25),
    (3.81, 0.75, -0.25),
    (1.27, 0.75, -0.25),
    (1.27, 4.25, -0.25),
    (3.81, 4.25, -0.25),
    (6.35, 4.25, -0.25),
]))
draft5.NeutralPlane = (doc.XY_Plane, [""])
draft5.Angle = 45
draft5.Reversed = True
doc.recompute()

chamfer = doc.addObject("PartDesign::Chamfer", "Chamfer")
body.addObject(chamfer)
chamfer.Base = (draft5, edges_at(draft5, [
    (5.08, 4.695, 1),
    (5.08, 0.305, 1),
    (2.54, 0.305, 1),
    (2.54, 4.695, 1),
]))
chamfer.Size = 0.007071
doc.recompute()

chamfer2 = doc.addObject("PartDesign::Chamfer", "Chamfer001")
body.addObject(chamfer2)
chamfer2.Base = (chamfer, edges_at(chamfer, [
    (6.668, 3.77, -3.8),
    (6.35, 3.453, -3.8),
    (6.032, 3.77, -3.8),
    (6.35, 4.088, -3.8),
]))
chamfer2.ChamferType = "Two distances"
chamfer2.Size = 0.207107
chamfer2.Size2 = 0.5
chamfer2.FlipDirection = True
doc.recompute()

chamfer3 = doc.addObject("PartDesign::Chamfer", "Chamfer002")
body.addObject(chamfer3)
chamfer3.Base = (chamfer2, edges_at(chamfer2, [
    (6.35, 0.912, -3.8),
    (6.032, 1.23, -3.8),
    (6.35, 1.548, -3.8),
    (6.668, 1.23, -3.8),
]))
chamfer3.ChamferType = "Two distances"
chamfer3.Size = 0.207107
chamfer3.Size2 = 0.5
chamfer3.FlipDirection = True
doc.recompute()

chamfer4 = doc.addObject("PartDesign::Chamfer", "Chamfer003")
body.addObject(chamfer4)
chamfer4.Base = (chamfer3, edges_at(chamfer3, [
    (3.81, 3.453, -3.8),
    (3.493, 3.77, -3.8),
    (3.81, 4.088, -3.8),
    (4.128, 3.77, -3.8),
]))
chamfer4.ChamferType = "Two distances"
chamfer4.Size = 0.207107
chamfer4.Size2 = 0.5
chamfer4.FlipDirection = True
doc.recompute()

chamfer5 = doc.addObject("PartDesign::Chamfer", "Chamfer004")
body.addObject(chamfer5)
chamfer5.Base = (chamfer4, edges_at(chamfer4, [
    (3.81, 0.912, -3.8),
    (3.493, 1.23, -3.8),
    (3.81, 1.548, -3.8),
    (4.128, 1.23, -3.8),
]))
chamfer5.ChamferType = "Two distances"
chamfer5.Size = 0.207107
chamfer5.Size2 = 0.5
chamfer5.FlipDirection = True
doc.recompute()

chamfer6 = doc.addObject("PartDesign::Chamfer", "Chamfer005")
body.addObject(chamfer6)
chamfer6.Base = (chamfer5, edges_at(chamfer5, [
    (1.27, 4.088, -3.8),
    (1.587, 3.77, -3.8),
    (1.27, 3.453, -3.8),
    (0.953, 3.77, -3.8),
]))
chamfer6.ChamferType = "Two distances"
chamfer6.Size = 0.207107
chamfer6.Size2 = 0.5
chamfer6.FlipDirection = True
doc.recompute()

chamfer7 = doc.addObject("PartDesign::Chamfer", "Chamfer006")
body.addObject(chamfer7)
chamfer7.Base = (chamfer6, edges_at(chamfer6, [
    (1.27, 0.912, -3.8),
    (0.953, 1.23, -3.8),
    (1.27, 1.548, -3.8),
    (1.587, 1.23, -3.8),
]))
chamfer7.ChamferType = "Two distances"
chamfer7.Size = 0.207107
chamfer7.Size2 = 0.5
chamfer7.FlipDirection = True
doc.recompute()

chamfer8 = doc.addObject("PartDesign::Chamfer", "Chamfer007")
body.addObject(chamfer8)
chamfer8.Base = (chamfer7, edges_at(chamfer7, [
    (6.032, 3.77, 7.5),
    (6.35, 3.453, 7.5),
    (6.668, 3.77, 7.5),
    (6.35, 4.088, 7.5),
]))
chamfer8.ChamferType = "Two distances"
chamfer8.Size = 0.207107
chamfer8.Size2 = 0.5
chamfer8.FlipDirection = True
doc.recompute()

chamfer9 = doc.addObject("PartDesign::Chamfer", "Chamfer008")
body.addObject(chamfer9)
chamfer9.Base = (chamfer8, edges_at(chamfer8, [
    (6.35, 0.912, 7.5),
    (6.668, 1.23, 7.5),
    (6.35, 1.548, 7.5),
    (6.032, 1.23, 7.5),
]))
chamfer9.ChamferType = "Two distances"
chamfer9.Size = 0.207107
chamfer9.Size2 = 0.5
chamfer9.FlipDirection = True
doc.recompute()

chamfer10 = doc.addObject("PartDesign::Chamfer", "Chamfer009")
body.addObject(chamfer10)
chamfer10.Base = (chamfer9, edges_at(chamfer9, [
    (3.493, 3.77, 7.5),
    (3.81, 3.453, 7.5),
    (4.128, 3.77, 7.5),
    (3.81, 4.088, 7.5),
]))
chamfer10.ChamferType = "Two distances"
chamfer10.Size = 0.207107
chamfer10.Size2 = 0.5
chamfer10.FlipDirection = True
doc.recompute()

chamfer11 = doc.addObject("PartDesign::Chamfer", "Chamfer010")
body.addObject(chamfer11)
chamfer11.Base = (chamfer10, edges_at(chamfer10, [
    (3.493, 1.23, 7.5),
    (3.81, 0.912, 7.5),
    (4.128, 1.23, 7.5),
    (3.81, 1.548, 7.5),
]))
chamfer11.ChamferType = "Two distances"
chamfer11.Size = 0.207107
chamfer11.Size2 = 0.5
chamfer11.FlipDirection = True
doc.recompute()

chamfer12 = doc.addObject("PartDesign::Chamfer", "Chamfer011")
body.addObject(chamfer12)
chamfer12.Base = (chamfer11, edges_at(chamfer11, [
    (0.953, 3.77, 7.5),
    (1.27, 3.453, 7.5),
    (1.587, 3.77, 7.5),
    (1.27, 4.088, 7.5),
]))
chamfer12.ChamferType = "Two distances"
chamfer12.Size = 0.207107
chamfer12.Size2 = 0.5
chamfer12.FlipDirection = True
doc.recompute()

chamfer13 = doc.addObject("PartDesign::Chamfer", "Chamfer012")
body.addObject(chamfer13)
chamfer13.Base = (chamfer12, edges_at(chamfer12, [
    (1.27, 0.912, 7.5),
    (1.587, 1.23, 7.5),
    (1.27, 1.548, 7.5),
    (0.953, 1.23, 7.5),
]))
chamfer13.ChamferType = "Two distances"
chamfer13.Size = 0.207107
chamfer13.Size2 = 0.5
chamfer13.FlipDirection = True

doc.recompute()
